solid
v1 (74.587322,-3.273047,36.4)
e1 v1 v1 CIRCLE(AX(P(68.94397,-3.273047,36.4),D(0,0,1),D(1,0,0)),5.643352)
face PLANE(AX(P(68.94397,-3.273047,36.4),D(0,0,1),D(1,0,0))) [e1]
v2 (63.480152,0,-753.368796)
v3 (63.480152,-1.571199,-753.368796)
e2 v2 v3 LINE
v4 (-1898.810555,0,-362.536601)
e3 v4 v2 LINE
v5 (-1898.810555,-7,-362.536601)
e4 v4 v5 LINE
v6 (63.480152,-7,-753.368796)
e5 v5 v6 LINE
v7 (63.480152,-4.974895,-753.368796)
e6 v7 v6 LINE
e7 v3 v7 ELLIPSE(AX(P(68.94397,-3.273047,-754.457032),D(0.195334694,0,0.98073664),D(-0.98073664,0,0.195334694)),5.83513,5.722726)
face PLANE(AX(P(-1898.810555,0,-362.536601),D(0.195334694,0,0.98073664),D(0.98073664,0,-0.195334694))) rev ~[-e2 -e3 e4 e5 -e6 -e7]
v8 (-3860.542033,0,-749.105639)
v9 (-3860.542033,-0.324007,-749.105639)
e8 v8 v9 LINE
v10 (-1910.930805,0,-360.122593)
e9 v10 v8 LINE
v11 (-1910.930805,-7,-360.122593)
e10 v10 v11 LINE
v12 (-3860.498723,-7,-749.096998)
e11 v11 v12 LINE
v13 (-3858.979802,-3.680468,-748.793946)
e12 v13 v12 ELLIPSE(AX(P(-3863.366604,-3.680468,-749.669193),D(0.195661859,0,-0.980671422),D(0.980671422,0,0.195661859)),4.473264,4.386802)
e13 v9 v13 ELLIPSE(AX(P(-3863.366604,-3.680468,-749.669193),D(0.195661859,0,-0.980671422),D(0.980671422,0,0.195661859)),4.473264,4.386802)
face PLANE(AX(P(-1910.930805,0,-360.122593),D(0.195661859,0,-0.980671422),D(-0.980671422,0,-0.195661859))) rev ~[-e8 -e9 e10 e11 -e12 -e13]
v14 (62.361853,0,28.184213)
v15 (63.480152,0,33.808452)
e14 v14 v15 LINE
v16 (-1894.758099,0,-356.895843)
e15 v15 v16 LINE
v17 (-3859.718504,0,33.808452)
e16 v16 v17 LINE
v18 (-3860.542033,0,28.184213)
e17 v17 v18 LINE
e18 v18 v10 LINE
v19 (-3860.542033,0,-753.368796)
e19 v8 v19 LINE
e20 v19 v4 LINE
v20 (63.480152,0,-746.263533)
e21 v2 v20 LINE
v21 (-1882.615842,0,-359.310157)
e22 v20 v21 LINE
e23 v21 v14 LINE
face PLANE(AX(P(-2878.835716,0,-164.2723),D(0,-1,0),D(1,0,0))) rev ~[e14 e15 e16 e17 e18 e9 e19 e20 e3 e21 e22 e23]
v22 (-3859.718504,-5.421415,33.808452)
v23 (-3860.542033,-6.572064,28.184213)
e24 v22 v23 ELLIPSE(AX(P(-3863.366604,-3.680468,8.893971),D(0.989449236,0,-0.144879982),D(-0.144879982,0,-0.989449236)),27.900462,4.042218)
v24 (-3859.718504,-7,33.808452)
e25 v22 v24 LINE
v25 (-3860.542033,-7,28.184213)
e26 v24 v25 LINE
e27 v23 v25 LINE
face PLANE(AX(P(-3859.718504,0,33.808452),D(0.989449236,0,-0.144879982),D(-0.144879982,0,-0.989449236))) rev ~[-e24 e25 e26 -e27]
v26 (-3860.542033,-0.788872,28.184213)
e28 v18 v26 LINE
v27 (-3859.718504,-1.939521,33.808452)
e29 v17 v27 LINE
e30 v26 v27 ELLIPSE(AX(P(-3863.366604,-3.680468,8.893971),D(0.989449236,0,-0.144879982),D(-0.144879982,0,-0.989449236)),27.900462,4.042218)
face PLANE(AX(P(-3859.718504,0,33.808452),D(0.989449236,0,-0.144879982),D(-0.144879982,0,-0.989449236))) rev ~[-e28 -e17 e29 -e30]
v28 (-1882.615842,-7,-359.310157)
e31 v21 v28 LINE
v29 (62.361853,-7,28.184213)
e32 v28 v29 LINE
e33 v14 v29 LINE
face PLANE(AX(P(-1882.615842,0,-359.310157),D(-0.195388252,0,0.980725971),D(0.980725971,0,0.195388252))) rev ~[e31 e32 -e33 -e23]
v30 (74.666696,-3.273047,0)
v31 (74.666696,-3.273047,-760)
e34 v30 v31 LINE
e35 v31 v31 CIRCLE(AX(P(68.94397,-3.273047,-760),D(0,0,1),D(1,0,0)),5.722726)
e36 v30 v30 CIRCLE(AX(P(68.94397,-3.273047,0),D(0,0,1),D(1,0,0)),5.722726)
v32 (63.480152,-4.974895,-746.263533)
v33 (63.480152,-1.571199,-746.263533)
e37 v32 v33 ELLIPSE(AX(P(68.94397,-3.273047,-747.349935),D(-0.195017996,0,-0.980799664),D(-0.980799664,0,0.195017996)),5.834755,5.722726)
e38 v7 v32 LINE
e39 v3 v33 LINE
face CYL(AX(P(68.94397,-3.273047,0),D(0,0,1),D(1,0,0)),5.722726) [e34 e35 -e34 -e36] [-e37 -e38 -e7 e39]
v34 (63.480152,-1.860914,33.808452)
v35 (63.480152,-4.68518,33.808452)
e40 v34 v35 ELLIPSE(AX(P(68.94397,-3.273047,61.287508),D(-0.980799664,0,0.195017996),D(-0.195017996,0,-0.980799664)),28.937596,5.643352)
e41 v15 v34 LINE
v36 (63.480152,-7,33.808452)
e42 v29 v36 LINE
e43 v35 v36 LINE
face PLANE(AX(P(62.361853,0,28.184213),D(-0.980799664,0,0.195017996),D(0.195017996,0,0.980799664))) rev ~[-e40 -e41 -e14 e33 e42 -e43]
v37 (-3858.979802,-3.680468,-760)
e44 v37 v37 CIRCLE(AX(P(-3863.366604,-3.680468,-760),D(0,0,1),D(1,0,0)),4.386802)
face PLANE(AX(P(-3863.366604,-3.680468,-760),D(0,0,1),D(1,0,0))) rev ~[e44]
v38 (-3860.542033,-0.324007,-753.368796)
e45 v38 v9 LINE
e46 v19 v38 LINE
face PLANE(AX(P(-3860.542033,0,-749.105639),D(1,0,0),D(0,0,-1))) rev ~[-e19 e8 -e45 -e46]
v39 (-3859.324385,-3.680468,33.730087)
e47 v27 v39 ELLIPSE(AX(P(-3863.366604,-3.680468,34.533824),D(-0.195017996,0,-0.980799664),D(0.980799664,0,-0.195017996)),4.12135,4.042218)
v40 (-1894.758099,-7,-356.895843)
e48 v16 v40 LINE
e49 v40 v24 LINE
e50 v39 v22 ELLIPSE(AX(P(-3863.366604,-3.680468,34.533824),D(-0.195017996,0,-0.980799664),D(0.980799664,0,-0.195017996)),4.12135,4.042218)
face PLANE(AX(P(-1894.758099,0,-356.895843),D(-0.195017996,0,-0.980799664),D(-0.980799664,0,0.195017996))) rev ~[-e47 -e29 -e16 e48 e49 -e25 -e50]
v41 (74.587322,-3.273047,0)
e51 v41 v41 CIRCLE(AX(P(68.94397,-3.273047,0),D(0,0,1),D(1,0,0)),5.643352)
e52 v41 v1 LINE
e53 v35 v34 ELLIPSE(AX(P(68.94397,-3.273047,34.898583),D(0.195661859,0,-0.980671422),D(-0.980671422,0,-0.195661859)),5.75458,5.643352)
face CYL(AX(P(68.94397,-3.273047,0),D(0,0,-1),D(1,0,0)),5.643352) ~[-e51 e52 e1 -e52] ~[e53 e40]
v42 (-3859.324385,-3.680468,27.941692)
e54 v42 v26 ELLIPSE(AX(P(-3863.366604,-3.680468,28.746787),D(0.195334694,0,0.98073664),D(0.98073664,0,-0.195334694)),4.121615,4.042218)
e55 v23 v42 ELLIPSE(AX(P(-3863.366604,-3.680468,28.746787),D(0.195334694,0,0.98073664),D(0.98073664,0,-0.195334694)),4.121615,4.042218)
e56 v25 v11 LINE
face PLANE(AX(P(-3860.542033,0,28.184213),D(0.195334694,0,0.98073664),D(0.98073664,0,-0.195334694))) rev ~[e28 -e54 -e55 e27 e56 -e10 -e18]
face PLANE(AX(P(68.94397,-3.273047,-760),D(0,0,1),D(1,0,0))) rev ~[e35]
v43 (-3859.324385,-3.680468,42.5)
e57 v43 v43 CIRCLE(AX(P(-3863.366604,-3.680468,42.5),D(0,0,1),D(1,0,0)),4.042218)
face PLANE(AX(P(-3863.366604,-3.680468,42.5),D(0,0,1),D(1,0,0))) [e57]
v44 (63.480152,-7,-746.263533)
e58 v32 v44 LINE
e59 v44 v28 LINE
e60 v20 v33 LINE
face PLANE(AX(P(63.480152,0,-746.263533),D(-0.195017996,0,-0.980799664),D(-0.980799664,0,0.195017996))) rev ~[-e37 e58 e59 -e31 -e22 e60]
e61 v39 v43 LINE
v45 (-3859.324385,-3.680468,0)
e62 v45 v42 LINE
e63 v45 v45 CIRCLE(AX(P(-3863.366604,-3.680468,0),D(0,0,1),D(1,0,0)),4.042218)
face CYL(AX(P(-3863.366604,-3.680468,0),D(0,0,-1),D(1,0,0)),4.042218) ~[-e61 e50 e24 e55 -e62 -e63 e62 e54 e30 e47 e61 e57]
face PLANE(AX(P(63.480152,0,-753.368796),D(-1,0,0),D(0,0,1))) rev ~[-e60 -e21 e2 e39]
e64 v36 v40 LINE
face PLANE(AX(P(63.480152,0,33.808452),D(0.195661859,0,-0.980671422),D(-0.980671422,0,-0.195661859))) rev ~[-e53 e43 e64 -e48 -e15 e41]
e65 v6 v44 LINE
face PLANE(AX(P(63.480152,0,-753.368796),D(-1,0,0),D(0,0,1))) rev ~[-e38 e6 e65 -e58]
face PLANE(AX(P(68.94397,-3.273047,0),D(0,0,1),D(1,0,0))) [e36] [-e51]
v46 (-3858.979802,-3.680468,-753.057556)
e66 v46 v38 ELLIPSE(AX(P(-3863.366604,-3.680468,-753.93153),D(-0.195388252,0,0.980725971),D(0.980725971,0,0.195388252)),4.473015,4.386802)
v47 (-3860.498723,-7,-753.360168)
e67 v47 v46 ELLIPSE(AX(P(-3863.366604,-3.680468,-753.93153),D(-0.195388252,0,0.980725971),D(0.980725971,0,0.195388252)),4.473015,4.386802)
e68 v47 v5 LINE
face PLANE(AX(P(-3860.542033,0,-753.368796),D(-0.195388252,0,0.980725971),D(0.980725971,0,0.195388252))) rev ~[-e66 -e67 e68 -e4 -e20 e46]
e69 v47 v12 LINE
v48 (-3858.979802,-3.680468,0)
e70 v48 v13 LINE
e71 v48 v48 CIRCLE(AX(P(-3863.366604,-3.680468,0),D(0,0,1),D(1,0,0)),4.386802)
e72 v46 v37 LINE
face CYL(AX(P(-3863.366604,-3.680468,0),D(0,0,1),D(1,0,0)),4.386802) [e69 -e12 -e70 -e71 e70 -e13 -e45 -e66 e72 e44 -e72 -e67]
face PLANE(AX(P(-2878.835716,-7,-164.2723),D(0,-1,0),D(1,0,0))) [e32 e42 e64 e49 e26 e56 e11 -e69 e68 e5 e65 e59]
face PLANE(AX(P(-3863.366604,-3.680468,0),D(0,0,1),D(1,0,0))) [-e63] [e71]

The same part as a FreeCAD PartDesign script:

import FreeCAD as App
import Part
import Sketcher


def add_polygon(sketch, points):
    """Adds a closed chain of lines whose ends are joined by coincident constraints."""
    first, n = sketch.GeometryCount, len(points)
    for a, b in zip(points, points[1:] + points[:1]):
        sketch.addGeometry(Part.LineSegment(App.Vector(*a, 0), App.Vector(*b, 0)), False)
    for i in range(n):
        sketch.addConstraint(Sketcher.Constraint("Coincident", first + i, 2, first + (i + 1) % n, 1))

doc = App.newDocument("Part")
body = doc.addObject("PartDesign::Body", "Body")

# Sketch on XZ plane
sketch1 = doc.addObject("Sketcher::SketchObject", "Sketch")
body.addObject(sketch1)
sketch1.AttachmentSupport = (doc.XZ_Plane, [""])
sketch1.MapMode = "FlatFace"
add_polygon(sketch1, [(-1894.758099, -356.895843), (-3859.718504, 33.808452), (-3860.542033, 28.184213), (-1910.930805, -360.122593), (-3860.542033, -749.105639), (-3860.542033, -753.368796), (-1898.810555, -362.536601), (63.480152, -753.368796), (63.480152, -746.263533), (-1882.615842, -359.310157), (62.361853, 28.184213), (63.480152, 33.808452)])  # lines 0-11
sketch1.addConstraint([
    Sketcher.Constraint("Vertical", 4),
    Sketcher.Constraint("Vertical", 7),
    Sketcher.Constraint("DistanceY", 5, 2, -1, 1, 362.536601),
    Sketcher.Constraint("DistanceX", 11, 2, -1, 1, 1894.758099),
    Sketcher.Constraint("DistanceX", 0, 2, 2, 2, 1948.787699),
    Sketcher.Constraint("DistanceX", 9, 2, 7, 2, 1.1183),
    Sketcher.Constraint("DistanceX", 9, 2, 10, 2, 1.1183),
    Sketcher.Constraint("Distance", 1, 5.684212),
    Sketcher.Constraint("Distance", 3, 1988.03716),
    Sketcher.Constraint("Distance", 5, 2000.285029),
    Sketcher.Constraint("Distance", 8, 1984.193169),
    Sketcher.Constraint("Distance", 10, 5.73434),
    Sketcher.Constraint("DistanceY", 4, 2, 4, 1, 4.263157),
    Sketcher.Constraint("DistanceY", 7, 1, 7, 2, 7.105263),
    Sketcher.Constraint("DistanceY", -1, 1, 0, 2, 33.808452),
    Sketcher.Constraint("DistanceY", 3, 2, -1, 1, 749.105639),
    Sketcher.Constraint("DistanceX", 8, 2, -1, 1, 1882.615842),
    Sketcher.Constraint("DistanceY", -1, 1, 10, 2, 33.808452),
    Sketcher.Constraint("DistanceX", 1, 2, 0, 2, 0.823529),
    Sketcher.Constraint("DistanceX", 3, 2, 0, 2, 0.823529),
    Sketcher.Constraint("DistanceY", 6, 2, 1, 2, 781.553009),
    Sketcher.Constraint("DistanceY", 6, 2, 8, 2, 394.058639),
    Sketcher.Constraint("DistanceX", 1, 2, 8, 2, 1977.926191),
    Sketcher.Constraint("DistanceY", 2, 2, 11, 2, 3.22675),
])
pad1 = doc.addObject("PartDesign::Pad", "Pad")
body.addObject(pad1)
pad1.Profile = sketch1
pad1.Length = 7

# Sketch on XY plane
sketch2 = doc.addObject("Sketcher::SketchObject", "Sketch001")
body.addObject(sketch2)
sketch2.AttachmentSupport = (doc.XY_Plane, [""])
sketch2.MapMode = "FlatFace"
sketch2.addGeometry([
    Part.Circle(App.Vector(-3863.4, -3.7, 0), App.Vector(0, 0, 1), 4.4),
    Part.Circle(App.Vector(68.9, -3.3, 0), App.Vector(0, 0, 1), 5.7),
], False)
sketch2.addConstraint([
    Sketcher.Constraint("Diameter", 1, 11.445451),
    Sketcher.Constraint("Diameter", 0, 8.773604),
    Sketcher.Constraint("DistanceX", -1, 1, 1, 3, 68.94397),
    Sketcher.Constraint("DistanceY", 0, 3, 1, 3, 0.407421),
    Sketcher.Constraint("DistanceX", 0, 3, -1, 1, 3863.366604),
    Sketcher.Constraint("DistanceY", 0, 3, -1, 1, 3.680468),
])
pad2 = doc.addObject("PartDesign::Pad", "Pad001")
body.addObject(pad2)
pad2.Profile = sketch2
pad2.Length = 760
pad2.Reversed = True

# Sketch on XY plane
sketch3 = doc.addObject("Sketcher::SketchObject", "Sketch002")
body.addObject(sketch3)
sketch3.AttachmentSupport = (doc.XY_Plane, [""])
sketch3.MapMode = "FlatFace"
sketch3.addGeometry(Part.Circle(App.Vector(-3863.4, -3.7, 0), App.Vector(0, 0, 1), 4), False)
sketch3.addConstraint([
    Sketcher.Constraint("Diameter", 0, 8.084437),
    Sketcher.Constraint("DistanceX", 0, 3, -1, 1, 3863.366604),
    Sketcher.Constraint("DistanceY", 0, 3, -1, 1, 3.680468),
])
pad3 = doc.addObject("PartDesign::Pad", "Pad002")
body.addObject(pad3)
pad3.Profile = sketch3
pad3.Length = 42.5

# Sketch on XY plane
sketch4 = doc.addObject("Sketcher::SketchObject", "Sketch003")
body.addObject(sketch4)
sketch4.AttachmentSupport = (doc.XY_Plane, [""])
sketch4.MapMode = "FlatFace"
sketch4.addGeometry(Part.Circle(App.Vector(69, -3, 0), App.Vector(0, 0, 1), 6), False)
sketch4.addConstraint([
    Sketcher.Constraint("Diameter", 0, 11.286704),
    Sketcher.Constraint("DistanceX", -1, 1, 0, 3, 68.94397),
    Sketcher.Constraint("DistanceY", 0, 3, -1, 1, 3.273047),
])
pad4 = doc.addObject("PartDesign::Pad", "Pad003")
body.addObject(pad4)
pad4.Profile = sketch4
pad4.Length = 36.4

doc.recompute()
